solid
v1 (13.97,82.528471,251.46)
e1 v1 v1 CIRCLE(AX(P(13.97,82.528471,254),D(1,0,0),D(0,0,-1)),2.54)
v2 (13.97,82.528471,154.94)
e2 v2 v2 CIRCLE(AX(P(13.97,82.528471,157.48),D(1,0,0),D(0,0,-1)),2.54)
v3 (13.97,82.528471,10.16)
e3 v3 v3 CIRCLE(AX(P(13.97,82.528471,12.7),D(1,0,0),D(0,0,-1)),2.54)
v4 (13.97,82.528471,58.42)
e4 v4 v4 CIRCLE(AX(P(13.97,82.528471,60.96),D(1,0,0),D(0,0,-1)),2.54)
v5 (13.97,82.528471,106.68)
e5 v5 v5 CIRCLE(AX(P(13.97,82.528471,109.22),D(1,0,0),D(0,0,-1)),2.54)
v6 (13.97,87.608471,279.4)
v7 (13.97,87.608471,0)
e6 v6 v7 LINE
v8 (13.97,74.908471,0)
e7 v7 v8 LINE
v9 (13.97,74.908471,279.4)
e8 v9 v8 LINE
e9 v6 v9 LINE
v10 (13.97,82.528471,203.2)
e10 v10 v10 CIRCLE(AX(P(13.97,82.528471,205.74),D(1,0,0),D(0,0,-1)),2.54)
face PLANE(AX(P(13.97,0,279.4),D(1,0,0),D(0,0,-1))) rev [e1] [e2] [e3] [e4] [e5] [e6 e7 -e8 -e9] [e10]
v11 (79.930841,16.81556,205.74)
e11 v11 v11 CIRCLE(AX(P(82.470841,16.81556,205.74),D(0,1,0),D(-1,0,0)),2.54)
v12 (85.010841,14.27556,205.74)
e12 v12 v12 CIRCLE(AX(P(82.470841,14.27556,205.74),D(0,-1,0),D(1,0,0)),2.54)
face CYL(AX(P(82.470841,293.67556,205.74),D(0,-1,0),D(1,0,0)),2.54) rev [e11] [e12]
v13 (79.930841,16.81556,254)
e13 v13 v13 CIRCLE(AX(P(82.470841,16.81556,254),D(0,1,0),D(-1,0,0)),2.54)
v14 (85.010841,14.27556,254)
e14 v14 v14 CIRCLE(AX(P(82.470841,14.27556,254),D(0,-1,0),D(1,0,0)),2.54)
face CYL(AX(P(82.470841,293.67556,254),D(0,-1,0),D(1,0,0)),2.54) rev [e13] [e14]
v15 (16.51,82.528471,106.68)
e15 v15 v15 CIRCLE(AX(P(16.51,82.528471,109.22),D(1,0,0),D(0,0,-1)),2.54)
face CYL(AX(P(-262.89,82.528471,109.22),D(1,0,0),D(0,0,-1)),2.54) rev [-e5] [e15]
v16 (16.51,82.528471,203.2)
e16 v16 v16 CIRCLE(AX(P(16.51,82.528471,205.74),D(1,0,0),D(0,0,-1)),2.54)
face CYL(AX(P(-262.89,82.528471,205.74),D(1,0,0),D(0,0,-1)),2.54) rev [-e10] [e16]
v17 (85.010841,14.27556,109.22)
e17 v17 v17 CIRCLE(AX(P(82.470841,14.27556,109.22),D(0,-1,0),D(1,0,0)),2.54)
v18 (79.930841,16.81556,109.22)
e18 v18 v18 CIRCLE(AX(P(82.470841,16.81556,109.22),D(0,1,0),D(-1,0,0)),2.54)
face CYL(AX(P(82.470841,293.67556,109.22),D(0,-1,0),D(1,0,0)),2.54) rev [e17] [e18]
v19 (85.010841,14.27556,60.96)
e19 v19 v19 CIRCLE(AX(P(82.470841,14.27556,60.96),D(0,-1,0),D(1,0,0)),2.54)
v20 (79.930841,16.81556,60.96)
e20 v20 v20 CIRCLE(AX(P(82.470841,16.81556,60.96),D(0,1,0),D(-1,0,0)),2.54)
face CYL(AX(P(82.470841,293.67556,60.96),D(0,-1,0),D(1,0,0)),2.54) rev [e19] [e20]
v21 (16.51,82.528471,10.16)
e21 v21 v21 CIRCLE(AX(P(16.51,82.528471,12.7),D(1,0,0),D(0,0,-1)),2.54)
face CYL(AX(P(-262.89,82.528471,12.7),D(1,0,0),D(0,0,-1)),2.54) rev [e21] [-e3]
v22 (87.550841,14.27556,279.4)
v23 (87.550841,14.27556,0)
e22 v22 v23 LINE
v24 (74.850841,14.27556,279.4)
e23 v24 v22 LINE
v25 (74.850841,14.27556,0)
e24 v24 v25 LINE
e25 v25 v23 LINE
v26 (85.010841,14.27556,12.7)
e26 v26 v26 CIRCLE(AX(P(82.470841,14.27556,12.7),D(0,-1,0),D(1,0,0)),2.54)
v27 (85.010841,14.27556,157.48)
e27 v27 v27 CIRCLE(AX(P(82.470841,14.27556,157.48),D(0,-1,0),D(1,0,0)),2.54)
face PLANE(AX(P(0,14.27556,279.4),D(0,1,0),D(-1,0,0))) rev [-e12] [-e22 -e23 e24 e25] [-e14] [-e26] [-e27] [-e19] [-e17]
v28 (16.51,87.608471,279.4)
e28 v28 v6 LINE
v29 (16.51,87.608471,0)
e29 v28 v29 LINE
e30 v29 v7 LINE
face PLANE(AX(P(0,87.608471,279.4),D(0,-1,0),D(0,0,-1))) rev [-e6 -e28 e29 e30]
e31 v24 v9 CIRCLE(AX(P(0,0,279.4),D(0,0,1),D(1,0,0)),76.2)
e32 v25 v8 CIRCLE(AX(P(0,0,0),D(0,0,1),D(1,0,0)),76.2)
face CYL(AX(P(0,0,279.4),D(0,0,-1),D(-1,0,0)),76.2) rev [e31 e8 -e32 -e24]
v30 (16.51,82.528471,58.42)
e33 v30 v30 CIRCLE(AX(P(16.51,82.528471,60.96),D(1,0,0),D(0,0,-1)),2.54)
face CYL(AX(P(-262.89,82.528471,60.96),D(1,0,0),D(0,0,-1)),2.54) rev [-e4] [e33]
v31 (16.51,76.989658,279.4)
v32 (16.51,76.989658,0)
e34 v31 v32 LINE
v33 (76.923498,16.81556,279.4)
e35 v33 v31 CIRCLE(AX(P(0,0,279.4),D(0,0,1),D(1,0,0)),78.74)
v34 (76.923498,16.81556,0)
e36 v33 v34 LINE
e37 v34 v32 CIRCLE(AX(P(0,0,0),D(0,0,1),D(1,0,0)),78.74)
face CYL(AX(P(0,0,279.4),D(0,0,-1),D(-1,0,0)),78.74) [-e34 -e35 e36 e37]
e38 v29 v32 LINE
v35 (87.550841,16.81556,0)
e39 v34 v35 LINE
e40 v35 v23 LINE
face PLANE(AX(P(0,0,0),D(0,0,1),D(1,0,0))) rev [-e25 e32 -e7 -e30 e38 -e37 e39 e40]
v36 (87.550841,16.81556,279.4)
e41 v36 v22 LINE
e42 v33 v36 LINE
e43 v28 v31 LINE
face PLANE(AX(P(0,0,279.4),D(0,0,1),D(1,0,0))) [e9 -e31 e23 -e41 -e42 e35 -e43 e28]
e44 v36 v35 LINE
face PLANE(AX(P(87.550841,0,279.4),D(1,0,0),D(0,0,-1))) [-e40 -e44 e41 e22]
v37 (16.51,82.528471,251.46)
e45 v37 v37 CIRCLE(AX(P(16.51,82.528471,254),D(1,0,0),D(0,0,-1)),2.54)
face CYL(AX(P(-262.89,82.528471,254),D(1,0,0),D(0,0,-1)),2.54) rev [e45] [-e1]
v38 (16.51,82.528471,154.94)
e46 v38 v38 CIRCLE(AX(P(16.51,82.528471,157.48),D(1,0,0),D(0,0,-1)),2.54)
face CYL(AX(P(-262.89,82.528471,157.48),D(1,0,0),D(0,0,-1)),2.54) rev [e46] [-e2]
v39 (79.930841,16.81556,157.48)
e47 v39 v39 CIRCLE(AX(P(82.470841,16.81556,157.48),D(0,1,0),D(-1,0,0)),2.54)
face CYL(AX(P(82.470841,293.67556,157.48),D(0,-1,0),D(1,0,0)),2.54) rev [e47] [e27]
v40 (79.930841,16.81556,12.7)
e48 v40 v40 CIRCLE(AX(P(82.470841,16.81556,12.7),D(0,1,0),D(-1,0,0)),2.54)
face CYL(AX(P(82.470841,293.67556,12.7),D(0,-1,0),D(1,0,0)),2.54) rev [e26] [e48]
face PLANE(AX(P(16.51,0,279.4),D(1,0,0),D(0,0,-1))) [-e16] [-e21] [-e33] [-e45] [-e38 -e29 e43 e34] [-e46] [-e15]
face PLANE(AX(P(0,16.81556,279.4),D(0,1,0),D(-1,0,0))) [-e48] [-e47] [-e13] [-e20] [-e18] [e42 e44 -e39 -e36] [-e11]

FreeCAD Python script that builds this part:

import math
import FreeCAD as App
import Part
import Sketcher
from FreeCAD import Vector
Q = App.Units.Quantity

doc = App.newDocument("Part")
body = doc.addObject("PartDesign::Body", "Body")

# Sketch on XY plane
sketch1 = doc.addObject("Sketcher::SketchObject", "Sketch")
body.addObject(sketch1)
sketch1.AttachmentSupport = (doc.XY_Plane, [""])
sketch1.MapMode = "FlatFace"
sketch1.addGeometry(Part.LineSegment(Vector(87.6, 16.8, 0), Vector(76.9, 16.8, 0)), False)
sketch1.addGeometry(Part.ArcOfCircle(Part.Circle(Vector(0, 0, 0), Vector(0, 0, 1), 78.7), math.radians(12), math.radians(78)), False)
sketch1.addGeometry(Part.LineSegment(Vector(16.5, 77, 0), Vector(16.5, 87.6, 0)), False)
sketch1.addGeometry(Part.LineSegment(Vector(16.5, 87.6, 0), Vector(14, 87.6, 0)), False)
sketch1.addGeometry(Part.LineSegment(Vector(14, 87.6, 0), Vector(14, 74.9, 0)), False)
sketch1.addGeometry(Part.ArcOfCircle(Part.Circle(Vector(0, 0, 0), Vector(0, 0, 1), 76.2), math.radians(11), math.radians(79)), False)
sketch1.addGeometry(Part.LineSegment(Vector(74.9, 14.3, 0), Vector(87.6, 14.3, 0)), False)
sketch1.addGeometry(Part.LineSegment(Vector(87.6, 14.3, 0), Vector(87.6, 16.8, 0)), False)
sketch1.addConstraint(Sketcher.Constraint("Coincident", 0, 2, 1, 1))
sketch1.addConstraint(Sketcher.Constraint("Coincident", 1, 2, 2, 1))
sketch1.addConstraint(Sketcher.Constraint("Coincident", 2, 2, 3, 1))
sketch1.addConstraint(Sketcher.Constraint("Coincident", 3, 2, 4, 1))
sketch1.addConstraint(Sketcher.Constraint("Coincident", 4, 2, 5, 2))
sketch1.addConstraint(Sketcher.Constraint("Coincident", 5, 1, 6, 1))
sketch1.addConstraint(Sketcher.Constraint("Coincident", 6, 2, 7, 1))
sketch1.addConstraint(Sketcher.Constraint("Coincident", 7, 2, 0, 1))
sketch1.addConstraint(Sketcher.Constraint("Horizontal", 0))
sketch1.addConstraint(Sketcher.Constraint("Vertical", 2))
sketch1.addConstraint(Sketcher.Constraint("Horizontal", 3))
sketch1.addConstraint(Sketcher.Constraint("Vertical", 4))
sketch1.addConstraint(Sketcher.Constraint("Horizontal", 6))
sketch1.addConstraint(Sketcher.Constraint("Vertical", 7))
sketch1.addConstraint(Sketcher.Constraint("Coincident", 1, 3, -1, 1))
sketch1.addConstraint(Sketcher.Constraint("Coincident", 5, 3, -1, 1))
sketch1.addConstraint(Sketcher.Constraint("Equal", 6, 4))
sketch1.addConstraint(Sketcher.Constraint("Equal", 3, 7))
sketch1.addConstraint(Sketcher.Constraint("Radius", 5, Q("3 in")))
sketch1.addConstraint(Sketcher.Constraint("Radius", 1, Q("3.1 in")))
sketch1.addConstraint(Sketcher.Constraint("DistanceX", 3, 2, 3, 1, Q("0.1 in")))
sketch1.addConstraint(Sketcher.Constraint("DistanceX", 6, 1, 6, 2, Q("0.5 in")))
sketch1.addConstraint(Sketcher.Constraint("DistanceX", -1, 1, 1, 2, Q("0.65 in")))
sketch1.addConstraint(Sketcher.Constraint("DistanceY", 0, 2, 1, 2, 60.174098))
pad1 = doc.addObject("PartDesign::Pad", "Pad")
body.addObject(pad1)
pad1.Profile = sketch1
pad1.Length = Q("11 in")

# Sketch on YZ plane
sketch2 = doc.addObject("Sketcher::SketchObject", "Sketch001")
body.addObject(sketch2)
sketch2.AttachmentSupport = (doc.YZ_Plane, [""])
sketch2.MapMode = "FlatFace"
sketch2.AttachmentOffset = App.Placement(Vector(0, 0, 0.65 * 25.4), App.Rotation())
sketch2.addGeometry(Part.Circle(Vector(82.5, 12.7, 0), Vector(0, 0, 1), 2.5), False)
sketch2.addGeometry(Part.Circle(Vector(82.5, 61, 0), Vector(0, 0, 1), 2.5), False)
sketch2.addGeometry(Part.Circle(Vector(82.5, 109.2, 0), Vector(0, 0, 1), 2.5), False)
sketch2.addGeometry(Part.Circle(Vector(82.5, 157.5, 0), Vector(0, 0, 1), 2.5), False)
sketch2.addGeometry(Part.Circle(Vector(82.5, 205.7, 0), Vector(0, 0, 1), 2.5), False)
sketch2.addGeometry(Part.Circle(Vector(82.5, 254, 0), Vector(0, 0, 1), 2.5), False)
sketch2.addConstraint(Sketcher.Constraint("Equal", 0, 1))
sketch2.addConstraint(Sketcher.Constraint("Equal", 1, 2))
sketch2.addConstraint(Sketcher.Constraint("Equal", 2, 3))
sketch2.addConstraint(Sketcher.Constraint("Equal", 3, 4))
sketch2.addConstraint(Sketcher.Constraint("Equal", 4, 5))
sketch2.addConstraint(Sketcher.Constraint("Vertical", 0, 3, 1, 3))
sketch2.addConstraint(Sketcher.Constraint("Vertical", 1, 3, 2, 3))
sketch2.addConstraint(Sketcher.Constraint("Vertical", 2, 3, 3, 3))
sketch2.addConstraint(Sketcher.Constraint("Vertical", 3, 3, 4, 3))
sketch2.addConstraint(Sketcher.Constraint("Vertical", 4, 3, 5, 3))
sketch2.addConstraint(Sketcher.Constraint("Diameter", 0, Q("0.2 in")))
sketch2.addConstraint(Sketcher.Constraint("DistanceY", -1, 1, 5, 3, Q("10 in")))
sketch2.addConstraint(Sketcher.Constraint("DistanceY", -1, 1, 0, 3, Q("0.5 in")))
sketch2.addConstraint(Sketcher.Constraint("DistanceY", -1, 1, 1, 3, Q("2.4 in")))
sketch2.addConstraint(Sketcher.Constraint("DistanceY", -1, 1, 2, 3, Q("4.3 in")))
sketch2.addConstraint(Sketcher.Constraint("DistanceY", -1, 1, 3, 3, Q("6.2 in")))
sketch2.addConstraint(Sketcher.Constraint("DistanceY", -1, 1, 4, 3, Q("8.1 in")))
sketch2.addConstraint(Sketcher.Constraint("DistanceX", -1, 1, 0, 3, 82.528471))
pocket1 = doc.addObject("PartDesign::Pocket", "Pocket")
body.addObject(pocket1)
pocket1.Profile = sketch2
pocket1.Length = Q("11 in")

# Sketch on XZ plane
sketch3 = doc.addObject("Sketcher::SketchObject", "Sketch002")
body.addObject(sketch3)
sketch3.AttachmentSupport = (doc.XZ_Plane, [""])
sketch3.MapMode = "FlatFace"
sketch3.AttachmentOffset = App.Placement(Vector(0, 0, -14.27556), App.Rotation())
sketch3.addGeometry(Part.Circle(Vector(82.5, 12.7, 0), Vector(0, 0, 1), 2.5), False)
sketch3.addGeometry(Part.Circle(Vector(82.5, 61, 0), Vector(0, 0, 1), 2.5), False)
sketch3.addGeometry(Part.Circle(Vector(82.5, 109.2, 0), Vector(0, 0, 1), 2.5), False)
sketch3.addGeometry(Part.Circle(Vector(82.5, 157.5, 0), Vector(0, 0, 1), 2.5), False)
sketch3.addGeometry(Part.Circle(Vector(82.5, 205.7, 0), Vector(0, 0, 1), 2.5), False)
sketch3.addGeometry(Part.Circle(Vector(82.5, 254, 0), Vector(0, 0, 1), 2.5), False)
sketch3.addConstraint(Sketcher.Constraint("Equal", 0, 1))
sketch3.addConstraint(Sketcher.Constraint("Equal", 1, 2))
sketch3.addConstraint(Sketcher.Constraint("Equal", 2, 3))
sketch3.addConstraint(Sketcher.Constraint("Equal", 3, 4))
sketch3.addConstraint(Sketcher.Constraint("Equal", 4, 5))
sketch3.addConstraint(Sketcher.Constraint("Vertical", 0, 3, 1, 3))
sketch3.addConstraint(Sketcher.Constraint("Vertical", 1, 3, 2, 3))
sketch3.addConstraint(Sketcher.Constraint("Vertical", 2, 3, 3, 3))
sketch3.addConstraint(Sketcher.Constraint("Vertical", 3, 3, 4, 3))
sketch3.addConstraint(Sketcher.Constraint("Vertical", 4, 3, 5, 3))
sketch3.addConstraint(Sketcher.Constraint("Diameter", 0, Q("0.2 in")))
sketch3.addConstraint(Sketcher.Constraint("DistanceY", -1, 1, 5, 3, Q("10 in")))
sketch3.addConstraint(Sketcher.Constraint("DistanceY", -1, 1, 0, 3, Q("0.5 in")))
sketch3.addConstraint(Sketcher.Constraint("DistanceY", -1, 1, 1, 3, Q("2.4 in")))
sketch3.addConstraint(Sketcher.Constraint("DistanceY", -1, 1, 2, 3, Q("4.3 in")))
sketch3.addConstraint(Sketcher.Constraint("DistanceY", -1, 1, 3, 3, Q("6.2 in")))
sketch3.addConstraint(Sketcher.Constraint("DistanceY", -1, 1, 4, 3, Q("8.1 in")))
sketch3.addConstraint(Sketcher.Constraint("DistanceX", -1, 1, 0, 3, 82.470841))
pocket2 = doc.addObject("PartDesign::Pocket", "Pocket001")
body.addObject(pocket2)
pocket2.Profile = sketch3
pocket2.Length = Q("11 in")

doc.recompute()
